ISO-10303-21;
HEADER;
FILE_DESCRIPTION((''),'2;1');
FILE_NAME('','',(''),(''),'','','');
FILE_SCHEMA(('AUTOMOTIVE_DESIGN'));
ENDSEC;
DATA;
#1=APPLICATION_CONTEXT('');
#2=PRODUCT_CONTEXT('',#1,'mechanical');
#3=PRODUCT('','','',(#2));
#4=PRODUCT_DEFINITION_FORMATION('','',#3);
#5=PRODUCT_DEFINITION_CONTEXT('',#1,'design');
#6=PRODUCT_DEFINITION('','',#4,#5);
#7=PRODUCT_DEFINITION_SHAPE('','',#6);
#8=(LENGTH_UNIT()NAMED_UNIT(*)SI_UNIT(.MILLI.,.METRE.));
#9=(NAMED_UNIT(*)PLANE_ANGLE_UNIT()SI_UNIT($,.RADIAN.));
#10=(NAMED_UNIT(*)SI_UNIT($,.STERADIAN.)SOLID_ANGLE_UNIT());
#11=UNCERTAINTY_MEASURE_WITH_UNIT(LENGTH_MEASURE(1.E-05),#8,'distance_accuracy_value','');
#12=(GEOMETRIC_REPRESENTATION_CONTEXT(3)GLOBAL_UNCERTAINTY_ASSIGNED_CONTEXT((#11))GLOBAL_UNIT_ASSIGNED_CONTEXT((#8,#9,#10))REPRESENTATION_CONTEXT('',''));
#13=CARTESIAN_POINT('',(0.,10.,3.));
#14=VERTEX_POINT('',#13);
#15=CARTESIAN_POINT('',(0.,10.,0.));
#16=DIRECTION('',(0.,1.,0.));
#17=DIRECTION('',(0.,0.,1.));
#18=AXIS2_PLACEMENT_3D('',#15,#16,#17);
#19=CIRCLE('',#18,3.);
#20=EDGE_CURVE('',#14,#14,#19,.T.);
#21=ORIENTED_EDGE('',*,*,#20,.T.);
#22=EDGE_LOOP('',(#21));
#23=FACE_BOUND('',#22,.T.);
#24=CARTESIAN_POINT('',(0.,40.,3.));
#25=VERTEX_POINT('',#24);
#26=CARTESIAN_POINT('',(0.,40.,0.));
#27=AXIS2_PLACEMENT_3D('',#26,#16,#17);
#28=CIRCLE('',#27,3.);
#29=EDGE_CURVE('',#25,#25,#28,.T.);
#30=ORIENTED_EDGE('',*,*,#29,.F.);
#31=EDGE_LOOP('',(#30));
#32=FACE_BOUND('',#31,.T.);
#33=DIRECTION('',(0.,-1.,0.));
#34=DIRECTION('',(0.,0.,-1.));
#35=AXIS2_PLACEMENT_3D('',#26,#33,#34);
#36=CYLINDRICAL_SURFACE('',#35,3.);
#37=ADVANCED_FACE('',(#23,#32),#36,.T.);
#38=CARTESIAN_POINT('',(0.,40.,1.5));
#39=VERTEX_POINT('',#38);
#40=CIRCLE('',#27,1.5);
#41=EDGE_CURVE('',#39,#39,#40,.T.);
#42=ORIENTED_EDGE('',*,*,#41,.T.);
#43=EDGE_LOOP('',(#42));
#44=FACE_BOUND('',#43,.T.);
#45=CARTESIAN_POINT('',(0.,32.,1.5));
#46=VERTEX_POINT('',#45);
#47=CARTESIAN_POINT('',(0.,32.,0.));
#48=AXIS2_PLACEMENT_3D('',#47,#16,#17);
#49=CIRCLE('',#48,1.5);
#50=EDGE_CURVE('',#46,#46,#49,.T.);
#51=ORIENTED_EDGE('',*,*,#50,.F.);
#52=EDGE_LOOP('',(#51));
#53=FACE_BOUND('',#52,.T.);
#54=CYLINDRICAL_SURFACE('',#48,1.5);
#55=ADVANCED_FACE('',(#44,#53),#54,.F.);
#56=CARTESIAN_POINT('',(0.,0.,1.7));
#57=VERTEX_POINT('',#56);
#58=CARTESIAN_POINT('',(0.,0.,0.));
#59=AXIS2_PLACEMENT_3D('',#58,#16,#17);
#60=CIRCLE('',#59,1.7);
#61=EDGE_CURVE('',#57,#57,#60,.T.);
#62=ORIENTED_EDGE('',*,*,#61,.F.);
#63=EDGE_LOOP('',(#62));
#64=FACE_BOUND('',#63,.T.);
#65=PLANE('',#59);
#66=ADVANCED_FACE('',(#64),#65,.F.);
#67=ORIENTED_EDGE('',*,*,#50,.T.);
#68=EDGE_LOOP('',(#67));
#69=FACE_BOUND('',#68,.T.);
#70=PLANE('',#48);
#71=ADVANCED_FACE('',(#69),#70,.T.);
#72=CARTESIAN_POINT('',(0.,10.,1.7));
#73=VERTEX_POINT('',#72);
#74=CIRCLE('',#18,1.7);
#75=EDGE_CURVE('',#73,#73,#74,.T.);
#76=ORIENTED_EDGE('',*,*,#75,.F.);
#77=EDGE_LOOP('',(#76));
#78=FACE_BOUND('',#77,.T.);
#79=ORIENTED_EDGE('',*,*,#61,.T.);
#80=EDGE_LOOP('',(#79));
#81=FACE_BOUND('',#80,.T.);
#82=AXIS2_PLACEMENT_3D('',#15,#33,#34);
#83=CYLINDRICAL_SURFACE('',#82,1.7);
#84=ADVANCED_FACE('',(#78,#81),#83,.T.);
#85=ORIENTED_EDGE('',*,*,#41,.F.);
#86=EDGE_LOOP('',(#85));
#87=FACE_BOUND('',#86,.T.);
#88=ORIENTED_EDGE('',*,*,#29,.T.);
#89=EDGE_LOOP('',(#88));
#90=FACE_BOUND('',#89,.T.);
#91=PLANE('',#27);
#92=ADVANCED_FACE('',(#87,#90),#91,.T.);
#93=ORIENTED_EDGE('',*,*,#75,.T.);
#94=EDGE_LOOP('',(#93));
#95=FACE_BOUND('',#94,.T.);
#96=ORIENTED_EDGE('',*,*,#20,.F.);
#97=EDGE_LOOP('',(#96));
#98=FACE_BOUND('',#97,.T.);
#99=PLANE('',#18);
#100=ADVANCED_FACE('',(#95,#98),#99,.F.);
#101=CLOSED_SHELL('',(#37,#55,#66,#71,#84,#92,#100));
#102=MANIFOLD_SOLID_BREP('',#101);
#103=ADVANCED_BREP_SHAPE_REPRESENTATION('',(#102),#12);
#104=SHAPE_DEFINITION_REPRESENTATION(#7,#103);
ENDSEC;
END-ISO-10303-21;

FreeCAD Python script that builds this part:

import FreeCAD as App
import Part
import Sketcher
from FreeCAD import Vector
Q = App.Units.Quantity

doc = App.newDocument("Part")
body = doc.addObject("PartDesign::Body", "Body")

# Sketch on XZ plane
sketch1 = body.newObject("Sketcher::SketchObject", "Sketch")
sketch1.AttachmentSupport = (doc.getObject("XZ_Plane"), [""])
sketch1.MapMode = "FlatFace"
sketch1.addGeometry(Part.Circle(Vector(0, 0, 0), Vector(0, 0, 1), 1.7), False)
sketch1.addConstraint([
    Sketcher.Constraint("Coincident", 0, 3, -1, 1),
    Sketcher.Constraint("Diameter", 0, Q("3.4 mm")),
])
pad1 = body.newObject("PartDesign::Pad", "Pad")
pad1.Profile = sketch1
pad1.Length = 10
pad1.Reversed = True

# Sketch on XZ plane
sketch2 = body.newObject("Sketcher::SketchObject", "Sketch001")
sketch2.AttachmentSupport = (doc.getObject("XZ_Plane"), [""])
sketch2.MapMode = "FlatFace"
sketch2.AttachmentOffset = App.Placement(Vector(0, 0, -10), App.Rotation())
sketch2.addGeometry(Part.Circle(Vector(0, 0, 0), Vector(0, 0, 1), 3), False)
sketch2.addConstraint([
    Sketcher.Constraint("Coincident", 0, 3, -1, 1),
    Sketcher.Constraint("Diameter", 0, Q("6 mm")),
])
pad2 = body.newObject("PartDesign::Pad", "Pad001")
pad2.Profile = sketch2
pad2.Length = 30
pad2.Reversed = True

# Sketch on XZ plane
sketch3 = body.newObject("Sketcher::SketchObject", "Sketch002")
sketch3.AttachmentSupport = (doc.getObject("XZ_Plane"), [""])
sketch3.MapMode = "FlatFace"
sketch3.AttachmentOffset = App.Placement(Vector(0, 0, -40), App.Rotation())
sketch3.addGeometry(Part.Circle(Vector(0, 0, 0), Vector(0, 0, 1), 1.5), False)
sketch3.addConstraint([
    Sketcher.Constraint("Coincident", 0, 3, -1, 1),
    Sketcher.Constraint("Diameter", 0, Q("3 mm")),
])
pocket1 = body.newObject("PartDesign::Pocket", "Pocket")
pocket1.Profile = sketch3
pocket1.Length = 8
pocket1.Reversed = True

doc.recompute()
